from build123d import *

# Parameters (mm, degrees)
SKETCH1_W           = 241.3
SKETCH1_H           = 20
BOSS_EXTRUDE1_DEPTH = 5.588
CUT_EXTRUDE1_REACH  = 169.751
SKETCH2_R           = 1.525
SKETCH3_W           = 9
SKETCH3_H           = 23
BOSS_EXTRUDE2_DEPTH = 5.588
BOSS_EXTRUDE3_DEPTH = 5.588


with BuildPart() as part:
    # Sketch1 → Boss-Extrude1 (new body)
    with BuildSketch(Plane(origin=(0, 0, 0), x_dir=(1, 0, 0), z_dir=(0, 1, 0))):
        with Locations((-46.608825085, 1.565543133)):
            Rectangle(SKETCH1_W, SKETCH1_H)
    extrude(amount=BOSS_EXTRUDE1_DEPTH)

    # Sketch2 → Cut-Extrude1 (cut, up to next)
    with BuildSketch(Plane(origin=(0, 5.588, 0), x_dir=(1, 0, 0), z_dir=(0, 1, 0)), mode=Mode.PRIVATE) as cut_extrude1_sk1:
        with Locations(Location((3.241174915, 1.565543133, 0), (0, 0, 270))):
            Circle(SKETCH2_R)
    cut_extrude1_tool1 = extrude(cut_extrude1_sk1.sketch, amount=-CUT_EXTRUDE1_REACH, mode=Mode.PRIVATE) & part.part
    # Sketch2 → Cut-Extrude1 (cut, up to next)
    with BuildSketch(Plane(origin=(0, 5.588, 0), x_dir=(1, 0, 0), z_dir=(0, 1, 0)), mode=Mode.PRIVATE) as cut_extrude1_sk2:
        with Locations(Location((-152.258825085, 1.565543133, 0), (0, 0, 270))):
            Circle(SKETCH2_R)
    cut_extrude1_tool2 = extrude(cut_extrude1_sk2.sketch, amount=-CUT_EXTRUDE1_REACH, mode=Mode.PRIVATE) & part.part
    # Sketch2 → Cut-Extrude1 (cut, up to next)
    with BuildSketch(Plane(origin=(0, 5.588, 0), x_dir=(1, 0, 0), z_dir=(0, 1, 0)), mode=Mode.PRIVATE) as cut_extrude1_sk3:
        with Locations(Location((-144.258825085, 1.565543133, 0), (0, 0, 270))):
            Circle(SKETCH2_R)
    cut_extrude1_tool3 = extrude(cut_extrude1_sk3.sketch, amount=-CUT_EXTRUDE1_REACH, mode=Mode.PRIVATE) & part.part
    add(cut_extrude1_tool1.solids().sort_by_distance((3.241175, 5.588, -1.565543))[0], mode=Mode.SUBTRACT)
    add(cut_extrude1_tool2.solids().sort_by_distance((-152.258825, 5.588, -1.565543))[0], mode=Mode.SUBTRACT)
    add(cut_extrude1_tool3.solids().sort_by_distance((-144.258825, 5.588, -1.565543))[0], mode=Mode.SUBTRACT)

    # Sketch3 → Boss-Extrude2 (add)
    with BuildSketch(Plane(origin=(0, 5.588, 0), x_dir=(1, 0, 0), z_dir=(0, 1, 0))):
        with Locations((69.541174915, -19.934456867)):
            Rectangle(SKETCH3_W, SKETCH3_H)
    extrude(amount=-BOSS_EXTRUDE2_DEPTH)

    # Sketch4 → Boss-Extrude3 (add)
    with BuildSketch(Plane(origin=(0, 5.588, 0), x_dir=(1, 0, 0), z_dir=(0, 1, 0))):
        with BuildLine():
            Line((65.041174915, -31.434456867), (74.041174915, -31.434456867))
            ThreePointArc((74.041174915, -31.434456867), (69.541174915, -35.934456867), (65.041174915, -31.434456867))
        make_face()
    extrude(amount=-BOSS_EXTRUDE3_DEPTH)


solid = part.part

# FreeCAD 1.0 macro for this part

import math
import FreeCAD as App
import Part
import Sketcher
from FreeCAD import Vector
Q = App.Units.Quantity


def add_polygon(sketch, points):
    """Adds a closed chain of lines whose ends are joined by coincident constraints."""
    first, n = sketch.GeometryCount, len(points)
    for a, b in zip(points, points[1:] + points[:1]):
        sketch.addGeometry(Part.LineSegment(App.Vector(*a, 0), App.Vector(*b, 0)), False)
    for i in range(n):
        sketch.addConstraint(Sketcher.Constraint("Coincident", first + i, 2, first + (i + 1) % n, 1))

doc = App.newDocument("Part")
params = doc.addObject("Spreadsheet::Sheet", "Params")
for row, (alias, value) in enumerate([
    ("sketch1_height", "20 mm"),
    ("sketch1_width", "241.3 mm"),
    ("pad1_length", "5.588 mm"),
    ("sketch2_diameter", "3.05 mm"),
    ("sketch3_diameter", "3.05 mm"),
    ("sketch4_diameter", "3.05 mm"),
    ("sketch5_width", "9 mm"),
    ("sketch5_height", "23 mm"),
    ("pad2_length", "5.588 mm"),
    ("sketch6_radius", "4.5 mm"),
    ("pad3_length", "5.588 mm"),
], start=1):
    params.set(f"A{row}", alias)
    params.set(f"B{row}", "=" + value)
    params.setAlias(f"B{row}", alias)

body = doc.addObject("PartDesign::Body", "Body")

# Sketch on XZ plane
sketch1 = doc.addObject("Sketcher::SketchObject", "Sketch")
body.addObject(sketch1)
sketch1.AttachmentSupport = (doc.XZ_Plane, [""])
sketch1.MapMode = "FlatFace"
add_polygon(sketch1, [(-167.258825, -11.565543), (-167.258825, 8.434457), (74.041175, 8.434457), (74.041175, -11.565543)])  # lines 0-3
sketch1.addConstraint([
    Sketcher.Constraint("Vertical", 0),
    Sketcher.Constraint("Horizontal", 1),
    Sketcher.Constraint("Vertical", 2),
    Sketcher.Constraint("Horizontal", 3),
    Sketcher.Constraint("DistanceY", 0, 1, 0, 2, Q("20 mm")),
    Sketcher.Constraint("DistanceX", 1, 1, 1, 2, Q("241.3 mm")),
    Sketcher.Constraint("DistanceX", 0, 2, -1, 1, Q("167.258825 mm")),
    Sketcher.Constraint("DistanceY", -1, 1, 0, 2, Q("8.434457 mm")),
])
sketch1.setExpression("Constraints[8]", "Params.sketch1_height")
sketch1.setExpression("Constraints[9]", "Params.sketch1_width")
pad1 = doc.addObject("PartDesign::Pad", "Pad")
body.addObject(pad1)
pad1.Profile = sketch1
pad1.setExpression("Length", "Params.pad1_length")
pad1.Reversed = True

# Sketch on XZ plane
sketch2 = doc.addObject("Sketcher::SketchObject", "Sketch001")
body.addObject(sketch2)
sketch2.AttachmentSupport = (doc.XZ_Plane, [""])
sketch2.MapMode = "FlatFace"
sketch2.AttachmentOffset = App.Placement(Vector(0, 0, -5.588), App.Rotation())
sketch2.addGeometry(Part.Circle(Vector(3.241175, -1.565543, 0), Vector(0, 0, 1), 1.525), False)
sketch2.addConstraint([
    Sketcher.Constraint("Diameter", 0, Q("3.05 mm")),
    Sketcher.Constraint("DistanceX", -1, 1, 0, 3, Q("3.241175 mm")),
    Sketcher.Constraint("DistanceY", 0, 3, -1, 1, Q("1.565543 mm")),
])
sketch2.setExpression("Constraints[0]", "Params.sketch2_diameter")
pocket1 = doc.addObject("PartDesign::Pocket", "Pocket")
body.addObject(pocket1)
pocket1.Profile = sketch2
pocket1.Type = "UpToFirst"
pocket1.Reversed = True

# Sketch on XZ plane
sketch3 = doc.addObject("Sketcher::SketchObject", "Sketch002")
body.addObject(sketch3)
sketch3.AttachmentSupport = (doc.XZ_Plane, [""])
sketch3.MapMode = "FlatFace"
sketch3.AttachmentOffset = App.Placement(Vector(0, 0, -5.588), App.Rotation())
sketch3.addGeometry(Part.Circle(Vector(-152.258825, -1.565543, 0), Vector(0, 0, 1), 1.525), False)
sketch3.addConstraint([
    Sketcher.Constraint("Diameter", 0, Q("3.05 mm")),
    Sketcher.Constraint("DistanceX", 0, 3, -1, 1, Q("152.258825 mm")),
    Sketcher.Constraint("DistanceY", 0, 3, -1, 1, Q("1.565543 mm")),
])
sketch3.setExpression("Constraints[0]", "Params.sketch3_diameter")
pocket2 = doc.addObject("PartDesign::Pocket", "Pocket001")
body.addObject(pocket2)
pocket2.Profile = sketch3
pocket2.Type = "UpToFirst"
pocket2.Reversed = True

# Sketch on XZ plane
sketch4 = doc.addObject("Sketcher::SketchObject", "Sketch003")
body.addObject(sketch4)
sketch4.AttachmentSupport = (doc.XZ_Plane, [""])
sketch4.MapMode = "FlatFace"
sketch4.AttachmentOffset = App.Placement(Vector(0, 0, -5.588), App.Rotation())
sketch4.addGeometry(Part.Circle(Vector(-144.258825, -1.565543, 0), Vector(0, 0, 1), 1.525), False)
sketch4.addConstraint([
    Sketcher.Constraint("Diameter", 0, Q("3.05 mm")),
    Sketcher.Constraint("DistanceX", 0, 3, -1, 1, Q("144.258825 mm")),
    Sketcher.Constraint("DistanceY", 0, 3, -1, 1, Q("1.565543 mm")),
])
sketch4.setExpression("Constraints[0]", "Params.sketch4_diameter")
pocket3 = doc.addObject("PartDesign::Pocket", "Pocket002")
body.addObject(pocket3)
pocket3.Profile = sketch4
pocket3.Type = "UpToFirst"
pocket3.Reversed = True

# Sketch on XZ plane
sketch5 = doc.addObject("Sketcher::SketchObject", "Sketch004")
body.addObject(sketch5)
sketch5.AttachmentSupport = (doc.XZ_Plane, [""])
sketch5.MapMode = "FlatFace"
sketch5.AttachmentOffset = App.Placement(Vector(0, 0, -5.588), App.Rotation())
add_polygon(sketch5, [(65.041175, 8.434457), (65.041175, 31.434457), (74.041175, 31.434457), (74.041175, 8.434457)])  # lines 0-3
sketch5.addConstraint([
    Sketcher.Constraint("Vertical", 0),
    Sketcher.Constraint("Horizontal", 1),
    Sketcher.Constraint("Vertical", 2),
    Sketcher.Constraint("Horizontal", 3),
    Sketcher.Constraint("DistanceX", 1, 1, 1, 2, Q("9 mm")),
    Sketcher.Constraint("DistanceY", 0, 1, 0, 2, Q("23 mm")),
    Sketcher.Constraint("DistanceX", -1, 1, 0, 2, Q("65.041175 mm")),
    Sketcher.Constraint("DistanceY", -1, 1, 0, 2, Q("31.434457 mm")),
])
sketch5.setExpression("Constraints[8]", "Params.sketch5_width")
sketch5.setExpression("Constraints[9]", "Params.sketch5_height")
pad2 = doc.addObject("PartDesign::Pad", "Pad001")
body.addObject(pad2)
pad2.Profile = sketch5
pad2.setExpression("Length", "Params.pad2_length")

# Sketch on XZ plane
sketch6 = doc.addObject("Sketcher::SketchObject", "Sketch005")
body.addObject(sketch6)
sketch6.AttachmentSupport = (doc.XZ_Plane, [""])
sketch6.MapMode = "FlatFace"
sketch6.AttachmentOffset = App.Placement(Vector(0, 0, -5.588), App.Rotation())
sketch6.addGeometry([
    Part.LineSegment(Vector(74.041175, 31.434457, 0), Vector(65.041175, 31.434457, 0)),
    Part.ArcOfCircle(Part.Circle(Vector(69.541175, 31.434457, 0), Vector(0, 0, 1), 4.5), math.radians(0), math.radians(180)),
], False)
sketch6.addConstraint([
    Sketcher.Constraint("Coincident", 0, 1, 1, 1),
    Sketcher.Constraint("Coincident", 1, 2, 0, 2),
    Sketcher.Constraint("Horizontal", 0),
    Sketcher.Constraint("Horizontal", 1, 3, 0, 1),
    Sketcher.Constraint("Radius", 1, Q("4.5 mm")),
    Sketcher.Constraint("DistanceX", -1, 1, 1, 3, Q("69.541175 mm")),
    Sketcher.Constraint("DistanceY", -1, 1, 1, 3, Q("31.434457 mm")),
])
sketch6.setExpression("Constraints[4]", "Params.sketch6_radius")
pad3 = doc.addObject("PartDesign::Pad", "Pad002")
body.addObject(pad3)
pad3.Profile = sketch6
pad3.setExpression("Length", "Params.pad3_length")

doc.recompute()
